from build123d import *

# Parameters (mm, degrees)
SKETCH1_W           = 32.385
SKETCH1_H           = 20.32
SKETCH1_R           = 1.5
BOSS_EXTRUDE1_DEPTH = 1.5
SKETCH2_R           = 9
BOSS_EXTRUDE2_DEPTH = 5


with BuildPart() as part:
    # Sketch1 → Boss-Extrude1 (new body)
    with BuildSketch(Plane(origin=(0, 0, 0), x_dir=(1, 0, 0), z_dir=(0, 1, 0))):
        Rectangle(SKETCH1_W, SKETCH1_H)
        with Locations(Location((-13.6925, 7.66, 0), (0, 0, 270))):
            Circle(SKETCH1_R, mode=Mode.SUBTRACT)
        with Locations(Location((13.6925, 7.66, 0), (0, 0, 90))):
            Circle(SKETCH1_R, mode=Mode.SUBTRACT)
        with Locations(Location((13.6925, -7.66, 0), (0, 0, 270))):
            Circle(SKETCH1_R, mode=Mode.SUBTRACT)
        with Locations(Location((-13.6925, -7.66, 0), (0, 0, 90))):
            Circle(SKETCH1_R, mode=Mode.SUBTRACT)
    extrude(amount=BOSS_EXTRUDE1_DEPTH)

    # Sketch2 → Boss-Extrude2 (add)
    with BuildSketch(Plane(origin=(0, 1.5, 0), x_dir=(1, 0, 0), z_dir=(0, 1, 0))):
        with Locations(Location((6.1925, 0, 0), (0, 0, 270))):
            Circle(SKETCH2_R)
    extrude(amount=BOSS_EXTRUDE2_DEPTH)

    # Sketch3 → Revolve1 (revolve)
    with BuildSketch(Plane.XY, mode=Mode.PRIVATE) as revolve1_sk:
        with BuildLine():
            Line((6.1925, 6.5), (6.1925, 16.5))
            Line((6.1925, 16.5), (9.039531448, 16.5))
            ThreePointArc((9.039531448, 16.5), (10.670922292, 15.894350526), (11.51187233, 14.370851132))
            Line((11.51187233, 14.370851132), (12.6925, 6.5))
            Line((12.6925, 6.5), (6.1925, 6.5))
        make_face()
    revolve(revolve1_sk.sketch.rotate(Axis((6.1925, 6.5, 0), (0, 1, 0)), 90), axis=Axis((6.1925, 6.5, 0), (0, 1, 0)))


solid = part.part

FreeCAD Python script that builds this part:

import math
import FreeCAD as App
import Part
import Sketcher

V = App.Vector
Q = App.Units.Quantity

doc = App.newDocument("Part")
body = doc.addObject("PartDesign::Body", "Body")

sketch1 = body.newObject("Sketcher::SketchObject", "Sketch")
sketch1.AttachmentSupport = (doc.getObject("XZ_Plane"), [""])
sketch1.MapMode = "FlatFace"
sketch1.addGeometry([
    Part.LineSegment(V(-16.2, -10.2, 0), V(-16.2, 10.2, 0)),
    Part.LineSegment(V(-16.2, 10.2, 0), V(16.2, 10.2, 0)),
    Part.LineSegment(V(16.2, 10.2, 0), V(16.2, -10.2, 0)),
    Part.LineSegment(V(16.2, -10.2, 0), V(-16.2, -10.2, 0)),
    Part.Circle(V(-13.7, 7.7, 0), V(0, 0, 1), 1.5),
    Part.Circle(V(13.7, 7.7, 0), V(0, 0, 1), 1.5),
    Part.Circle(V(-13.7, -7.7, 0), V(0, 0, 1), 1.5),
    Part.Circle(V(13.7, -7.7, 0), V(0, 0, 1), 1.5),
], False)
sketch1.addConstraint([
    Sketcher.Constraint("Coincident", 0, 2, 1, 1),
    Sketcher.Constraint("Coincident", 1, 2, 2, 1),
    Sketcher.Constraint("Coincident", 2, 2, 3, 1),
    Sketcher.Constraint("Coincident", 3, 2, 0, 1),
    Sketcher.Constraint("Vertical", 0),
    Sketcher.Constraint("Horizontal", 1),
    Sketcher.Constraint("Vertical", 2),
    Sketcher.Constraint("Horizontal", 3),
    Sketcher.Constraint("Equal", 4, 5),
    Sketcher.Constraint("Equal", 5, 6),
    Sketcher.Constraint("Equal", 6, 7),
    Sketcher.Constraint("Symmetric", 5, 3, 6, 3, -1, 1),
    Sketcher.Constraint("Symmetric", 4, 3, 7, 3, -1, 1),
    Sketcher.Constraint("Symmetric", 0, 2, 2, 2, -1, 1),
    Sketcher.Constraint("Symmetric", 4, 3, 5, 3, -2),
    Sketcher.Constraint("Diameter", 4, Q("3 mm")),
    Sketcher.Constraint("DistanceY", 0, 1, 0, 2, Q("20.32 mm")),
    Sketcher.Constraint("DistanceX", 0, 2, 4, 3, Q("2.5 mm")),
    Sketcher.Constraint("DistanceY", 4, 3, 0, 2, Q("2.5 mm")),
    Sketcher.Constraint("DistanceX", 1, 1, 1, 2, Q("32.385 mm")),
])
pad1 = body.newObject("PartDesign::Pad", "Pad")
pad1.Profile = sketch1
pad1.Length = 1.5
pad1.Reversed = True

sketch2 = body.newObject("Sketcher::SketchObject", "Sketch001")
sketch2.AttachmentSupport = (doc.getObject("XZ_Plane"), [""])
sketch2.MapMode = "FlatFace"
sketch2.AttachmentOffset = App.Placement(V(0, 0, -1.5), App.Rotation())
sketch2.addGeometry(Part.Circle(V(6, 0, 0), V(0, 0, 1), 9), False)
sketch2.addConstraint([
    Sketcher.Constraint("PointOnObject", 0, 3, -1),
    Sketcher.Constraint("Diameter", 0, Q("18 mm")),
    Sketcher.Constraint("DistanceX", -1, 1, 0, 3, Q("6.1925 mm")),
])
pad2 = body.newObject("PartDesign::Pad", "Pad001")
pad2.Profile = sketch2
pad2.Length = 5
pad2.Reversed = True

sketch3 = body.newObject("Sketcher::SketchObject", "Sketch002")
sketch3.AttachmentSupport = (doc.getObject("XY_Plane"), [""])
sketch3.MapMode = "FlatFace"
sketch3.addGeometry([
    Part.LineSegment(V(6.2, 16.5, 0), V(6.2, 6.5, 0)),
    Part.LineSegment(V(6.2, 6.5, 0), V(12.7, 6.5, 0)),
    Part.LineSegment(V(12.7, 6.5, 0), V(11.5, 14.4, 0)),
    Part.ArcOfCircle(Part.Circle(V(9, 14, 0), V(0, 0, 1), 2.5), math.radians(9), math.radians(90)),
    Part.LineSegment(V(9, 16.5, 0), V(6.2, 16.5, 0)),
], False)
sketch3.addGeometry(Part.LineSegment(V(6.2, 6.5, 0), V(6.2, 16.5, 0)), True)
sketch3.addConstraint([
    Sketcher.Constraint("Coincident", 0, 2, 1, 1),
    Sketcher.Constraint("Coincident", 1, 2, 2, 1),
    Sketcher.Constraint("Tangent", 2, 2, 3, 1),
    Sketcher.Constraint("Tangent", 3, 2, 4, 1),
    Sketcher.Constraint("Coincident", 4, 2, 0, 1),
    Sketcher.Constraint("Vertical", 0),
    Sketcher.Constraint("Horizontal", 1),
    Sketcher.Constraint("Horizontal", 4),
    Sketcher.Constraint("Vertical", 5),
    Sketcher.Constraint("Coincident", 5, 1, 0, 2),
    Sketcher.Constraint("Horizontal", 3, 2, 5, 2),
    Sketcher.Constraint("Radius", 3, Q("2.5 mm")),
    Sketcher.Constraint("DistanceY", 0, 2, 0, 1, Q("10 mm")),
    Sketcher.Constraint("DistanceX", 1, 1, 1, 2, Q("6.5 mm")),
    Sketcher.Constraint("DistanceY", -1, 1, 3, 3, Q("14 mm")),
    Sketcher.Constraint("DistanceX", 4, 2, 4, 1, Q("2.847031 mm")),
    Sketcher.Constraint("DistanceX", -1, 1, 0, 2, Q("6.1925 mm")),
])
revolution = body.newObject("PartDesign::Revolution", "Revolution")
revolution.Profile = sketch3
revolution.ReferenceAxis = (sketch3, ["Axis0"])
revolution.Angle = 360

doc.recompute()
